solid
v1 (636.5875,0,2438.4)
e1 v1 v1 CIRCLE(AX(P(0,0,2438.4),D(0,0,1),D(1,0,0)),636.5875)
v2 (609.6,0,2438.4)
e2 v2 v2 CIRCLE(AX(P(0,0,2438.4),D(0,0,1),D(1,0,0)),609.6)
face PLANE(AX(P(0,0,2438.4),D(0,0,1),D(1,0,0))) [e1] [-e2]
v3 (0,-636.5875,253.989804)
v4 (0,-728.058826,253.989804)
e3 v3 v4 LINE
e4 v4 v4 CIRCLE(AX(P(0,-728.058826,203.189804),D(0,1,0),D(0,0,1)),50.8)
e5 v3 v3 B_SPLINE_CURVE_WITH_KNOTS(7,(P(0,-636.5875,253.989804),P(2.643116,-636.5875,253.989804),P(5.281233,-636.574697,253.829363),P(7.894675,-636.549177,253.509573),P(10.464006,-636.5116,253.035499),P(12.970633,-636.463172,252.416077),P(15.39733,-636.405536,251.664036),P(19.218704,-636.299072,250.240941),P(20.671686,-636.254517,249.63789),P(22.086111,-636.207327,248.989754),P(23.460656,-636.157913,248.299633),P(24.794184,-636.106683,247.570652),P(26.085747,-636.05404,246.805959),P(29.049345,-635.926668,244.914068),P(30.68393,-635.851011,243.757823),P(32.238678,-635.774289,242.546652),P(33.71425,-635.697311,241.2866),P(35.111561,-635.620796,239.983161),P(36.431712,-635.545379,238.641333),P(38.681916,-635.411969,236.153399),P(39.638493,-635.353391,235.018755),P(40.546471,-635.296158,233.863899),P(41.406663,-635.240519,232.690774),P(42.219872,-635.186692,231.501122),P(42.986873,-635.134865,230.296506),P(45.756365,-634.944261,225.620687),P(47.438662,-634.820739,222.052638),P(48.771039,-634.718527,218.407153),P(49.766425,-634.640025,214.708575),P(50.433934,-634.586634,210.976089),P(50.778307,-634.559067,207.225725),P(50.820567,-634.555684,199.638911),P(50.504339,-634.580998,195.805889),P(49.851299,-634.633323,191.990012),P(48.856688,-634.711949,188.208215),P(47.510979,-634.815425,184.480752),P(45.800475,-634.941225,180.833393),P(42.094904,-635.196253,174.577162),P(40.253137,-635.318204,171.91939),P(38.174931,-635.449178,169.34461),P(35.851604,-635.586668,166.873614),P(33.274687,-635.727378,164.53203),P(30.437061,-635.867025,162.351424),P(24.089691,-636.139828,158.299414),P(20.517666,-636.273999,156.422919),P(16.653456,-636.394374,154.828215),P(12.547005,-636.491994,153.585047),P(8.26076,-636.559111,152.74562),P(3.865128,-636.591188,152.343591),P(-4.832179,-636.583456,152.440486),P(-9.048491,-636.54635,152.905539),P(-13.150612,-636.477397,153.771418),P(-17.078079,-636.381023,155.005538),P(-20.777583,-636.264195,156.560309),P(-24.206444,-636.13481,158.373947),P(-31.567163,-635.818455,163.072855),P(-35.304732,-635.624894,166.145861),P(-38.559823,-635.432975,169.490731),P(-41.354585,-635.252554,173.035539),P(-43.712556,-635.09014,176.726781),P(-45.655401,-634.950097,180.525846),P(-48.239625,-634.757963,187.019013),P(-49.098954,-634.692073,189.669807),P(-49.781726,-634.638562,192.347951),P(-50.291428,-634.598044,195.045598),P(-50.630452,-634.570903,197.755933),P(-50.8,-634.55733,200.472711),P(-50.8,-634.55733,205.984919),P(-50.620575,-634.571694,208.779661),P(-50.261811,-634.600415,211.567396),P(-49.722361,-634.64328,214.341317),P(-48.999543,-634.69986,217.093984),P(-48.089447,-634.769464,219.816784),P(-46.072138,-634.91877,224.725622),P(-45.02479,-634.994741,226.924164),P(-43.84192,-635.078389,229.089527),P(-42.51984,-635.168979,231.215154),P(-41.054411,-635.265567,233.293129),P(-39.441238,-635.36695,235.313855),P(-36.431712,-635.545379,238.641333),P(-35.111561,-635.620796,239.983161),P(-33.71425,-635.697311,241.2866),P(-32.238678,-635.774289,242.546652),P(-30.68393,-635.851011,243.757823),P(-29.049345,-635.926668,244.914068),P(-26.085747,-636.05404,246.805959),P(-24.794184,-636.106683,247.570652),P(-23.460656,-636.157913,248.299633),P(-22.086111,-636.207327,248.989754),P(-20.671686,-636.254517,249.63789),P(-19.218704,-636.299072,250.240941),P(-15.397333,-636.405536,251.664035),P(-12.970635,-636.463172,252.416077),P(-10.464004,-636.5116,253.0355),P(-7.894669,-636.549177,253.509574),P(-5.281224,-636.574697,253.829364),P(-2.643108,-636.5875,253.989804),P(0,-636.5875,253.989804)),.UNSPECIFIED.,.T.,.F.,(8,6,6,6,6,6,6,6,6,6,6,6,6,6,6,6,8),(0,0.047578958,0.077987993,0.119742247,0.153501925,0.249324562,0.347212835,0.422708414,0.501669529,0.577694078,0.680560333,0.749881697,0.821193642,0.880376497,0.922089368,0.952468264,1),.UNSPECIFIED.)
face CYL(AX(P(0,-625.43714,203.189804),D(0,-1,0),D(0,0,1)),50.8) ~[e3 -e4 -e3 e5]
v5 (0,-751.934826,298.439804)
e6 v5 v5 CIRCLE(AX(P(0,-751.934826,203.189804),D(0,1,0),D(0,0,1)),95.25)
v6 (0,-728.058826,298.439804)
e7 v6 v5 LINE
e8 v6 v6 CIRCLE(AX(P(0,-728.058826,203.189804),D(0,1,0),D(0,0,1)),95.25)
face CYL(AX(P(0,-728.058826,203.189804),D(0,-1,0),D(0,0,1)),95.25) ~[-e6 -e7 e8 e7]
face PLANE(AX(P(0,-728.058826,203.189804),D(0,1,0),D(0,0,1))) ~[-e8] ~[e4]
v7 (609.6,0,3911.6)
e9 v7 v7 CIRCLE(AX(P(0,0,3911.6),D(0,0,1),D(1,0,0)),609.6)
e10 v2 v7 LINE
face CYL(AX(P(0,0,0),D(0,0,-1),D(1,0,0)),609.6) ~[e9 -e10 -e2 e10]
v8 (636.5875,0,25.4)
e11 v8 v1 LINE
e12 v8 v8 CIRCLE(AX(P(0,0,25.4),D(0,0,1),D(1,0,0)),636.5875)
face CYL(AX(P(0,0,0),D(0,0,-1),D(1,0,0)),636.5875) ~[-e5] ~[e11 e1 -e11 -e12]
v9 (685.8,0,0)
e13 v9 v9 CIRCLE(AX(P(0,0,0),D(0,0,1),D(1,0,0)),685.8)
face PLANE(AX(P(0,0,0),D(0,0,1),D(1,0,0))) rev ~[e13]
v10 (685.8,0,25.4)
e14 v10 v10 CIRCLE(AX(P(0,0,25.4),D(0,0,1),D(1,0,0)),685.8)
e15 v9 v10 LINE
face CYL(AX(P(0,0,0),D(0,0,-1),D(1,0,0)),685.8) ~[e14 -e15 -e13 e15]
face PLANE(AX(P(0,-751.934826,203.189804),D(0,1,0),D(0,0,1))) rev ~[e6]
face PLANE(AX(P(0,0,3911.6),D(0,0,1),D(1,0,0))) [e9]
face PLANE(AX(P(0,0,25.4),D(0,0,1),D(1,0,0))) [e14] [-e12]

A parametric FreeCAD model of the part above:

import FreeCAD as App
import Part
import Sketcher
Q = App.Units.Quantity


def add_polygon(sketch, points):
    """Adds a closed chain of lines whose ends are joined by coincident constraints."""
    first, n = sketch.GeometryCount, len(points)
    for a, b in zip(points, points[1:] + points[:1]):
        sketch.addGeometry(Part.LineSegment(App.Vector(*a, 0), App.Vector(*b, 0)), False)
    for i in range(n):
        sketch.addConstraint(Sketcher.Constraint("Coincident", first + i, 2, first + (i + 1) % n, 1))

doc = App.newDocument("Part")
body = doc.addObject("PartDesign::Body", "Body")

sketch1 = doc.addObject("Sketcher::SketchObject", "Sketch")
body.addObject(sketch1)
sketch1.AttachmentSupport = (doc.XY_Plane, [""])
sketch1.MapMode = "FlatFace"
sketch1.addGeometry(Part.Circle(App.Vector(0, 0, 0), App.Vector(0, 0, 1), 610), False)
sketch1.addConstraint(Sketcher.Constraint("Coincident", 0, 3, -1, 1))
sketch1.addConstraint(Sketcher.Constraint("Diameter", 0, Q("48 in")))
pad1 = doc.addObject("PartDesign::Pad", "Pad")
body.addObject(pad1)
pad1.Profile = sketch1
pad1.Length = Q("154 in")

sketch2 = doc.addObject("Sketcher::SketchObject", "Sketch001")
body.addObject(sketch2)
sketch2.AttachmentSupport = (doc.XY_Plane, [""])
sketch2.MapMode = "FlatFace"
sketch2.addGeometry(Part.Circle(App.Vector(0, 0, 0), App.Vector(0, 0, 1), 637), False)
sketch2.addGeometry(Part.Circle(App.Vector(0, 0, 0), App.Vector(0, 0, 1), 610), False)
sketch2.addConstraint(Sketcher.Constraint("Coincident", 0, 3, -1, 1))
sketch2.addConstraint(Sketcher.Constraint("Coincident", 1, 3, -1, 1))
sketch2.addConstraint(Sketcher.Constraint("Diameter", 1, Q("48 in")))
sketch2.addConstraint(Sketcher.Constraint("Diameter", 0, Q("50.125 in")))
pad2 = doc.addObject("PartDesign::Pad", "Pad001")
body.addObject(pad2)
pad2.Profile = sketch2
pad2.Length = Q("96 in")

sketch3 = doc.addObject("Sketcher::SketchObject", "Sketch002")
body.addObject(sketch3)
sketch3.AttachmentSupport = (doc.XY_Plane, [""])
sketch3.MapMode = "FlatFace"
sketch3.addGeometry(Part.Circle(App.Vector(0, 0, 0), App.Vector(0, 0, 1), 686), False)
sketch3.addGeometry(Part.Circle(App.Vector(0, 0, 0), App.Vector(0, 0, 1), 637), False)
sketch3.addConstraint(Sketcher.Constraint("Coincident", 0, 3, -1, 1))
sketch3.addConstraint(Sketcher.Constraint("Coincident", 1, 3, -1, 1))
sketch3.addConstraint(Sketcher.Constraint("Diameter", 0, Q("54 in")))
sketch3.addConstraint(Sketcher.Constraint("Diameter", 1, Q("50.125 in")))
pad3 = doc.addObject("PartDesign::Pad", "Pad002")
body.addObject(pad3)
pad3.Profile = sketch3
pad3.Length = Q("1 in")

sketch4 = doc.addObject("Sketcher::SketchObject", "Sketch003")
body.addObject(sketch4)
sketch4.AttachmentSupport = (doc.YZ_Plane, [""])
sketch4.MapMode = "FlatFace"
add_polygon(sketch4, [(-752, 298), (-752, 203), (-625, 203), (-625, 254), (-728, 254), (-728, 298)])
sketch4.addGeometry(Part.LineSegment(App.Vector(-752, 203, 0), App.Vector(-625, 203, 0)), True)
sketch4.addConstraint(Sketcher.Constraint("Vertical", 0))
sketch4.addConstraint(Sketcher.Constraint("Horizontal", 1))
sketch4.addConstraint(Sketcher.Constraint("Vertical", 2))
sketch4.addConstraint(Sketcher.Constraint("Horizontal", 3))
sketch4.addConstraint(Sketcher.Constraint("Vertical", 4))
sketch4.addConstraint(Sketcher.Constraint("Horizontal", 5))
sketch4.addConstraint(Sketcher.Constraint("Horizontal", 6))
sketch4.addConstraint(Sketcher.Constraint("Coincident", 6, 1, 0, 2))
sketch4.addConstraint(Sketcher.Constraint("Vertical", 2, 2, 6, 2))
sketch4.addConstraint(Sketcher.Constraint("DistanceY", 2, 1, 2, 2, Q("2 in")))
sketch4.addConstraint(Sketcher.Constraint("DistanceX", 5, 2, 5, 1, Q("0.94 in")))
sketch4.addConstraint(Sketcher.Constraint("DistanceY", 0, 2, 0, 1, Q("3.75 in")))
sketch4.addConstraint(Sketcher.Constraint("DistanceX", 1, 1, 1, 2, 126.497686))
sketch4.addConstraint(Sketcher.Constraint("DistanceX", 1, 2, -1, 1, 625.43714))
sketch4.addConstraint(Sketcher.Constraint("DistanceY", -1, 1, 0, 2, 203.189804))
revolution = doc.addObject("PartDesign::Revolution", "Revolution")
body.addObject(revolution)
revolution.Profile = sketch4
revolution.ReferenceAxis = (sketch4, ["Axis0"])
revolution.Angle = 360

doc.recompute()
